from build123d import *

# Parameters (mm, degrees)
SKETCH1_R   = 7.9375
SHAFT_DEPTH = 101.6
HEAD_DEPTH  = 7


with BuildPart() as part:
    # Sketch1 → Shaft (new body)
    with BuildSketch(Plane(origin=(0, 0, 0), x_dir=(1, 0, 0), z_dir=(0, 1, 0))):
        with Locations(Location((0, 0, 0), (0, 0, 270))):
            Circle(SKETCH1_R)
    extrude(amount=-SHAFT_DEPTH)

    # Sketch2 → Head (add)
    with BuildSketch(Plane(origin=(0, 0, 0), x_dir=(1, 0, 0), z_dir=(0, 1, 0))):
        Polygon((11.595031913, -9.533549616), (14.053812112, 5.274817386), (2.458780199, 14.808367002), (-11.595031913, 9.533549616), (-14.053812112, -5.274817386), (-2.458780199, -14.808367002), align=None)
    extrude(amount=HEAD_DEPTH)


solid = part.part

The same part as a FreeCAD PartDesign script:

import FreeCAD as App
import Part
import Sketcher
from FreeCAD import Vector
Q = App.Units.Quantity

doc = App.newDocument("Part")
body = doc.addObject("PartDesign::Body", "Body")

sketch1 = doc.addObject("Sketcher::SketchObject", "Sketch")
body.addObject(sketch1)
sketch1.AttachmentSupport = (doc.XZ_Plane, [""])
sketch1.MapMode = "FlatFace"
sketch1.addGeometry(Part.Circle(Vector(0, 0, 0), Vector(0, 0, 1), 8), False)
sketch1.addConstraint([
    Sketcher.Constraint("Coincident", 0, 3, -1, 1),
    Sketcher.Constraint("Diameter", 0, Q("0.625 in")),
])
pad1 = doc.addObject("PartDesign::Pad", "Pad")
body.addObject(pad1)
pad1.Profile = sketch1
pad1.Length = Q("4 in")

sketch2 = doc.addObject("Sketcher::SketchObject", "Sketch001")
body.addObject(sketch2)
sketch2.AttachmentSupport = (doc.XZ_Plane, [""])
sketch2.MapMode = "FlatFace"
sketch2.addGeometry([
    Part.LineSegment(Vector(12, 10, 0), Vector(14, -5, 0)),
    Part.LineSegment(Vector(14, -5, 0), Vector(2, -15, 0)),
    Part.LineSegment(Vector(2, -15, 0), Vector(-12, -10, 0)),
    Part.LineSegment(Vector(-12, -10, 0), Vector(-14, 5, 0)),
    Part.LineSegment(Vector(-14, 5, 0), Vector(-2, 15, 0)),
    Part.LineSegment(Vector(-2, 15, 0), Vector(12, 10, 0)),
], False)
sketch2.addConstraint([
    Sketcher.Constraint("Coincident", 0, 2, 1, 1),
    Sketcher.Constraint("Coincident", 1, 2, 2, 1),
    Sketcher.Constraint("Coincident", 2, 2, 3, 1),
    Sketcher.Constraint("Coincident", 3, 2, 4, 1),
    Sketcher.Constraint("Coincident", 4, 2, 5, 1),
    Sketcher.Constraint("Coincident", 5, 2, 0, 1),
    Sketcher.Constraint("Symmetric", 0, 2, 3, 2, -1, 1),
    Sketcher.Constraint("Symmetric", 1, 2, 4, 2, -1, 1),
    Sketcher.Constraint("Symmetric", 2, 2, 5, 2, -1, 1),
    Sketcher.Constraint("Equal", 0, 1),
    Sketcher.Constraint("Equal", 1, 2),
    Sketcher.Constraint("DistanceY", 2, 2, 5, 2, 19.067099),
    Sketcher.Constraint("DistanceX", -1, 1, 1, 2, 2.45878),
    Sketcher.Constraint("DistanceX", 2, 2, -1, 1, 11.595032),
    Sketcher.Constraint("DistanceX", 1, 2, 0, 2, 11.595032),
])
pad2 = doc.addObject("PartDesign::Pad", "Pad001")
body.addObject(pad2)
pad2.Profile = sketch2
pad2.Length = 7
pad2.Reversed = True

doc.recompute()
